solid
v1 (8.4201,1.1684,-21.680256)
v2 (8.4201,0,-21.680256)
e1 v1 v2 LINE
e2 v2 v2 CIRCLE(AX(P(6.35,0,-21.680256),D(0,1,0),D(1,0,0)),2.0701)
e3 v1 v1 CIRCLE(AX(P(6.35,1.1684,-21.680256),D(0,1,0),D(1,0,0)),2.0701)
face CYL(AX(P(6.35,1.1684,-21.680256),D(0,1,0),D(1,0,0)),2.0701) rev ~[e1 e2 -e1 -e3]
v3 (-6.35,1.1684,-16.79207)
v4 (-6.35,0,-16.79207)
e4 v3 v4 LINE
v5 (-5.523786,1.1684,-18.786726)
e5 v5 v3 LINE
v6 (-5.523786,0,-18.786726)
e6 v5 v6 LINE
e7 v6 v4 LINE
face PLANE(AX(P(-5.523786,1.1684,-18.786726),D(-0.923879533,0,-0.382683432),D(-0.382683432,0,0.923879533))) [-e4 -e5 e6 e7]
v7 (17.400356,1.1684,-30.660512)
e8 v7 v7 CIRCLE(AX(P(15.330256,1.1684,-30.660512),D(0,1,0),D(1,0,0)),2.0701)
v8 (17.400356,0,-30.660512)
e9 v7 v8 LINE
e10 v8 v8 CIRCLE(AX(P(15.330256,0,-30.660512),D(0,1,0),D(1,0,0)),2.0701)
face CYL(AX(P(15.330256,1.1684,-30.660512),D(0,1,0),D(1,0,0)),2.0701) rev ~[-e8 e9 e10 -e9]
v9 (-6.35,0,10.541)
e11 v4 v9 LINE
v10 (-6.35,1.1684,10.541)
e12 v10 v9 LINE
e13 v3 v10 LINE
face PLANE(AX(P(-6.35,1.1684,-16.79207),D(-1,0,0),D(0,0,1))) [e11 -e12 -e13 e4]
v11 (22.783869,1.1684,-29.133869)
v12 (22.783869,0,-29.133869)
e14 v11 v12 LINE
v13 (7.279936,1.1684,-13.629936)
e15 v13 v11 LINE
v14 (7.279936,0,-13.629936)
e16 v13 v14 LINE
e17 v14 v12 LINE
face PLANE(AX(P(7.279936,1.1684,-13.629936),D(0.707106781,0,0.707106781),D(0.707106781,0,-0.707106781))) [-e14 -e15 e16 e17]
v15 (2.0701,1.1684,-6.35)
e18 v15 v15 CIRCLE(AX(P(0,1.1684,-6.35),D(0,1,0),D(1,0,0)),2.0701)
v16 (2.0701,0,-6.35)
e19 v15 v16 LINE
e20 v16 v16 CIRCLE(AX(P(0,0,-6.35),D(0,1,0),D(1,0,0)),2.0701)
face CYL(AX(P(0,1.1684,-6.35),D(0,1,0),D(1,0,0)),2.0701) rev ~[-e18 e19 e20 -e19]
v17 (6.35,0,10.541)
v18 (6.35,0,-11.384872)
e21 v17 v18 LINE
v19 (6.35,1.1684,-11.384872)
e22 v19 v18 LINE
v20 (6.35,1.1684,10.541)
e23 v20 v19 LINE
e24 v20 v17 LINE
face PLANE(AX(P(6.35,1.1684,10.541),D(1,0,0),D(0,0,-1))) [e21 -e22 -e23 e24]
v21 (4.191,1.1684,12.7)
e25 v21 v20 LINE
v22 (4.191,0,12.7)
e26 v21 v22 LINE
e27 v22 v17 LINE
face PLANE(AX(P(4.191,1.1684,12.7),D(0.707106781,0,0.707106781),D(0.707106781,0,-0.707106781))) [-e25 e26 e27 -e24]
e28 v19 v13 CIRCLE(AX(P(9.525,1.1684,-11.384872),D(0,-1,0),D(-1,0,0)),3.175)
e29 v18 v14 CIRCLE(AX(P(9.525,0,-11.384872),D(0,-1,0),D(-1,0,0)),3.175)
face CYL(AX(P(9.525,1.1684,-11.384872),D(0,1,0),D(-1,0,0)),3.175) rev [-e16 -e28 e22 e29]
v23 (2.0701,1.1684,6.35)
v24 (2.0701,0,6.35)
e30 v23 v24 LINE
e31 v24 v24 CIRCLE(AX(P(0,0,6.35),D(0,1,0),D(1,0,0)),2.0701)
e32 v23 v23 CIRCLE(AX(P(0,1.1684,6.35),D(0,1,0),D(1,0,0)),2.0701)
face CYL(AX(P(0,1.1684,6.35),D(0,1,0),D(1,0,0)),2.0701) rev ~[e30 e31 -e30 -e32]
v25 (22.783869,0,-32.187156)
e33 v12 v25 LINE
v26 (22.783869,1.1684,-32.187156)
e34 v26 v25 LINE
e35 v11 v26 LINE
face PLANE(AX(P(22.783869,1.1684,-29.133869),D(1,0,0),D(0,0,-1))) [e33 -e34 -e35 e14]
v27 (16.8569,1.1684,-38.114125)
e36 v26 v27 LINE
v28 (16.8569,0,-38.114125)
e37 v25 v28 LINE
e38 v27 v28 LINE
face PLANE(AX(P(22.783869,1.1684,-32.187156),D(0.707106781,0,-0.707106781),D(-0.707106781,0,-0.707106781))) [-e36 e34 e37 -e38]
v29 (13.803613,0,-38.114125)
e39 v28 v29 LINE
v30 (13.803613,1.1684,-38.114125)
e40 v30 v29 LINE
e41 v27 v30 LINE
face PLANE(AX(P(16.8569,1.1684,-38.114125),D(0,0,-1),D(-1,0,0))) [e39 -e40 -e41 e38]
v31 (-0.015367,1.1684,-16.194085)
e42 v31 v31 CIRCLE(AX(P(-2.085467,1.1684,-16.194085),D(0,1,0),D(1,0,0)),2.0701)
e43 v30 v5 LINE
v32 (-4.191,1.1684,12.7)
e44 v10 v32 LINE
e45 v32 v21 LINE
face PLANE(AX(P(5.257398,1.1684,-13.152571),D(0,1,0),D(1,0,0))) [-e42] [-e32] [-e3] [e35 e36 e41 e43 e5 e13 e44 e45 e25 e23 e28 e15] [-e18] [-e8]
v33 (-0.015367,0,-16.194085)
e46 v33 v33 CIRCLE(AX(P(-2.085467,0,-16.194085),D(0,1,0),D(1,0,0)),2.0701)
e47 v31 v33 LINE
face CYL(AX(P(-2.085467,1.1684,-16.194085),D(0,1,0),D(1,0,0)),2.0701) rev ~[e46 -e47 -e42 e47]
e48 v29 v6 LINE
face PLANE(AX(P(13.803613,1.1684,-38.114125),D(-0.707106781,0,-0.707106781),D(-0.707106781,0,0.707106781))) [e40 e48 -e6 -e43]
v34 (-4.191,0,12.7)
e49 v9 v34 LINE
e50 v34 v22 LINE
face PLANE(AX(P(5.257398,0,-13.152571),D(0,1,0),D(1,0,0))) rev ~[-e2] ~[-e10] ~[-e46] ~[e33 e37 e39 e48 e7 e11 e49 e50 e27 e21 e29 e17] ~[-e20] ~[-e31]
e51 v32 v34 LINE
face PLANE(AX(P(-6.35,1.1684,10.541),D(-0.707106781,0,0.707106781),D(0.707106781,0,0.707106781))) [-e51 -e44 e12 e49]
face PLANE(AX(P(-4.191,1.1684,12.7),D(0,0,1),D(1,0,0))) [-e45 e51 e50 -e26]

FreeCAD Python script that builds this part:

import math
import FreeCAD as App
import Part
import Sketcher
Q = App.Units.Quantity

doc = App.newDocument("Part")
body = doc.addObject("PartDesign::Body", "Body")

sketch1 = body.newObject("Sketcher::SketchObject", "Sketch")
sketch1.AttachmentSupport = (doc.getObject("XZ_Plane"), [""])
sketch1.MapMode = "FlatFace"
sketch1.AttachmentOffset = App.Placement(App.Vector(0, 0, -0.046 * 25.4), App.Rotation())
sketch1.addGeometry([
    Part.LineSegment(App.Vector(16.8569, -38.114125, 0), App.Vector(13.803613, -38.114125, 0)),
    Part.LineSegment(App.Vector(13.803613, -38.114125, 0), App.Vector(-5.523786, -18.786726, 0)),
    Part.LineSegment(App.Vector(-5.523786, -18.786726, 0), App.Vector(-6.35, -16.79207, 0)),
    Part.LineSegment(App.Vector(-6.35, -16.79207, 0), App.Vector(-6.35, 10.541, 0)),
    Part.LineSegment(App.Vector(-6.35, 10.541, 0), App.Vector(-4.191, 12.7, 0)),
    Part.LineSegment(App.Vector(-4.191, 12.7, 0), App.Vector(4.191, 12.7, 0)),
    Part.LineSegment(App.Vector(4.191, 12.7, 0), App.Vector(6.35, 10.541, 0)),
    Part.LineSegment(App.Vector(6.35, 10.541, 0), App.Vector(6.35, -11.384872, 0)),
    Part.ArcOfCircle(Part.Circle(App.Vector(9.525, -11.384872, 0), App.Vector(0, 0, 1), 3.175), math.radians(180), math.radians(225)),
    Part.LineSegment(App.Vector(7.279936, -13.629936, 0), App.Vector(22.783869, -29.133869, 0)),
    Part.LineSegment(App.Vector(22.783869, -29.133869, 0), App.Vector(22.783869, -32.187156, 0)),
    Part.LineSegment(App.Vector(22.783869, -32.187156, 0), App.Vector(16.8569, -38.114125, 0)),
    Part.Circle(App.Vector(0, 6.35, 0), App.Vector(0, 0, 1), 2.0701),
    Part.Circle(App.Vector(0, -6.35, 0), App.Vector(0, 0, 1), 2.0701),
    Part.Circle(App.Vector(-2.085467, -16.194085, 0), App.Vector(0, 0, 1), 2.0701),
    Part.Circle(App.Vector(6.35, -21.680256, 0), App.Vector(0, 0, 1), 2.0701),
    Part.Circle(App.Vector(15.330256, -30.660512, 0), App.Vector(0, 0, 1), 2.0701),
], False)
sketch1.addConstraint([
    Sketcher.Constraint("Coincident", 0, 2, 1, 1),
    Sketcher.Constraint("Coincident", 1, 2, 2, 1),
    Sketcher.Constraint("Coincident", 2, 2, 3, 1),
    Sketcher.Constraint("Coincident", 3, 2, 4, 1),
    Sketcher.Constraint("Coincident", 4, 2, 5, 1),
    Sketcher.Constraint("Coincident", 5, 2, 6, 1),
    Sketcher.Constraint("Coincident", 6, 2, 7, 1),
    Sketcher.Constraint("Tangent", 7, 2, 8, 1),
    Sketcher.Constraint("Tangent", 8, 2, 9, 1),
    Sketcher.Constraint("Coincident", 9, 2, 10, 1),
    Sketcher.Constraint("Coincident", 10, 2, 11, 1),
    Sketcher.Constraint("Coincident", 11, 2, 0, 1),
    Sketcher.Constraint("Horizontal", 0),
    Sketcher.Constraint("Vertical", 3),
    Sketcher.Constraint("Horizontal", 5),
    Sketcher.Constraint("Vertical", 7),
    Sketcher.Constraint("Vertical", 10),
    Sketcher.Constraint("Equal", 12, 13),
    Sketcher.Constraint("Equal", 13, 14),
    Sketcher.Constraint("Equal", 14, 15),
    Sketcher.Constraint("Equal", 15, 16),
    Sketcher.Constraint("Symmetric", 12, 3, 13, 3, -1, 1),
    Sketcher.Constraint("Symmetric", 3, 2, 6, 2, -2),
    Sketcher.Constraint("PointOnObject", 12, 3, -2),
    Sketcher.Constraint("Perpendicular", 1, 4),
    Sketcher.Constraint("Perpendicular", 4, 6),
    Sketcher.Constraint("Parallel", 6, 9),
    Sketcher.Constraint("Perpendicular", 9, 11),
    Sketcher.Constraint("Vertical", 15, 3, 6, 2),
    Sketcher.Constraint("Equal", 0, 10),
    Sketcher.Constraint("Equal", 4, 6),
    Sketcher.Constraint("Diameter", 12, Q("0.163 in")),
    Sketcher.Constraint("Radius", 8, Q("0.125 in")),
    Sketcher.Constraint("DistanceX", 5, 1, 5, 2, Q("0.33 in")),
    Sketcher.Constraint("DistanceY", -1, 1, 4, 2, Q("0.5 in")),
    Sketcher.Constraint("Angle", 2, Q("112.5 deg")),
    Sketcher.Constraint("DistanceY", 13, 3, 12, 3, Q("0.5 in")),
    Sketcher.Constraint("DistanceX", 2, 2, 15, 3, Q("0.5 in")),
    Sketcher.Constraint("Distance", 11, Q("0.33 in")),
    Sketcher.Constraint("Distance", 2, Q("0.085 in")),
    Sketcher.Constraint("DistanceY", 3, 1, 3, 2, 27.33307),
    Sketcher.Constraint("DistanceY", 7, 2, 7, 1, 21.925872),
    Sketcher.Constraint("DistanceX", -1, 1, 11, 2, 16.8569),
    Sketcher.Constraint("DistanceY", 10, 2, 15, 3, 10.5069),
    Sketcher.Constraint("DistanceY", 15, 3, 14, 3, 5.486171),
    Sketcher.Constraint("DistanceY", 16, 3, 8, 3, 19.27564),
    Sketcher.Constraint("DistanceX", 14, 3, 0, 2, 15.889079),
    Sketcher.Constraint("DistanceX", -1, 1, 16, 3, 15.330256),
])
pad1 = body.newObject("PartDesign::Pad", "Pad")
pad1.Profile = sketch1
pad1.Length = Q("0.046 in")

doc.recompute()
